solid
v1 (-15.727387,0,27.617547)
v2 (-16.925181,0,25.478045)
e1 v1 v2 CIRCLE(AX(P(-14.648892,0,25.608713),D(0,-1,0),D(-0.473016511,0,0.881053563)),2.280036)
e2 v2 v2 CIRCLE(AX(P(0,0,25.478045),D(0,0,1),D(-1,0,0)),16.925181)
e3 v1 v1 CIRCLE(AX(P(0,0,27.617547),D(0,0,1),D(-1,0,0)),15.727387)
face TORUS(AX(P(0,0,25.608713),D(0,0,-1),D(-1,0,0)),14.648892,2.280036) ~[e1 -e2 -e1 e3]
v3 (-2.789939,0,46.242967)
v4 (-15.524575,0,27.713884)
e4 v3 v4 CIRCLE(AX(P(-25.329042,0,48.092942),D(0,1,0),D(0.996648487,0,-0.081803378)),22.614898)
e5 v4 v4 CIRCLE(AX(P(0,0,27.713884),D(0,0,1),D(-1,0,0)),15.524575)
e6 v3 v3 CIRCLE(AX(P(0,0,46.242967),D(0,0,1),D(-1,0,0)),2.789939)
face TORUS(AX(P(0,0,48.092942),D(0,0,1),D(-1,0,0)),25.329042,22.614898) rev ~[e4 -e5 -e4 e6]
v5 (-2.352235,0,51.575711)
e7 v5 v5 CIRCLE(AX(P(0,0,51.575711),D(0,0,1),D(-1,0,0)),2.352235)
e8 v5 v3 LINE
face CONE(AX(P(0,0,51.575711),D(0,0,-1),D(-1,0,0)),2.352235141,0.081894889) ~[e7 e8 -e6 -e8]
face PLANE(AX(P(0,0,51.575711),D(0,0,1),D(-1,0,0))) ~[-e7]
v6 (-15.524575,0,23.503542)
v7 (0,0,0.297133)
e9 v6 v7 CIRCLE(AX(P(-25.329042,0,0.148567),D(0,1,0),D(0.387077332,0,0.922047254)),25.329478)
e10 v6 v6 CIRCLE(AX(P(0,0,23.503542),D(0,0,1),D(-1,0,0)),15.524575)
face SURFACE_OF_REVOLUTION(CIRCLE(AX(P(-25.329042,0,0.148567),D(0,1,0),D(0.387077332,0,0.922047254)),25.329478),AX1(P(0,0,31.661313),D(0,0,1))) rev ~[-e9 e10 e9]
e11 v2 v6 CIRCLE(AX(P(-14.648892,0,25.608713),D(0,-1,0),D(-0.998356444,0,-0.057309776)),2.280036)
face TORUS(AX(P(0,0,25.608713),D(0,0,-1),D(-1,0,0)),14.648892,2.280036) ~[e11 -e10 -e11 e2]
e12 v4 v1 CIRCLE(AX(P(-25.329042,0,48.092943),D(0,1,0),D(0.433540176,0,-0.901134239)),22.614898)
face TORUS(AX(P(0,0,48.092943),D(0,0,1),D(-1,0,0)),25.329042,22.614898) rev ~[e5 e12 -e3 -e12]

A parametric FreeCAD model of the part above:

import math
import FreeCAD as App
import Part
import Sketcher

V = App.Vector

doc = App.newDocument("Part")
body = doc.addObject("PartDesign::Body", "Body")

# Sketch on XZ plane
sketch1 = body.newObject("Sketcher::SketchObject", "Sketch")
sketch1.AttachmentSupport = (doc.getObject("XZ_Plane"), [""])
sketch1.MapMode = "FlatFace"
sketch1.addGeometry([
    Part.LineSegment(V(0, 51.575711, 0), V(-2.352235, 51.575711, 0)),  # 0
    Part.LineSegment(V(-2.352235, 51.575711, 0), V(-2.789939, 46.242967, 0)),  # 1
    Part.ArcOfCircle(Part.Circle(V(-25.329042, 48.092942, 0), V(0, 0, 1), 22.614898), math.radians(-64.307561), math.radians(-4.692232)),  # 2
    Part.ArcOfCircle(Part.Circle(V(-25.329042, 48.092943, 0), V(0, 0, 1), 22.614898), math.radians(-64.876416), math.radians(-64.307561)),  # 3
    Part.ArcOfCircle(Part.Circle(V(-14.648892, 25.608713, 0), V(0, 0, 1), 2.280036), math.radians(118.230284), math.radians(183.285408)),  # 4
    Part.ArcOfCircle(Part.Circle(V(-14.648892, 25.608713, 0), V(0, 0, 1), 2.280036), math.radians(-176.714592), math.radians(-112.585739)),  # 5
    Part.ArcOfCircle(Part.Circle(V(-25.329042, 0.148567, 0), V(0, 0, 1), 25.329478), math.radians(0.336063), math.radians(67.227236)),  # 6
    Part.LineSegment(V(0, 0.297133, 0), V(0, 51.575711, 0)),  # 7
], False)
sketch1.addConstraint([
    Sketcher.Constraint("Coincident", 0, 2, 1, 1),
    Sketcher.Constraint("Coincident", 1, 2, 2, 2),
    Sketcher.Constraint("Coincident", 2, 1, 3, 2),
    Sketcher.Constraint("Coincident", 3, 1, 4, 1),
    Sketcher.Constraint("Coincident", 4, 2, 5, 1),
    Sketcher.Constraint("Coincident", 5, 2, 6, 2),
    Sketcher.Constraint("Coincident", 6, 1, 7, 1),
    Sketcher.Constraint("Coincident", 7, 2, 0, 1),
    Sketcher.Constraint("Horizontal", 0),
    Sketcher.Constraint("Vertical", 7),
    Sketcher.Constraint("Coincident", 3, 3, 2, 3),
    Sketcher.Constraint("Coincident", 5, 3, 4, 3),
    Sketcher.Constraint("PointOnObject", 6, 1, -2),
    Sketcher.Constraint("Radius", 3, 22.614898),
    Sketcher.Constraint("Radius", 4, 2.280036),
    Sketcher.Constraint("Radius", 6, 25.329478),
    Sketcher.Constraint("DistanceY", 5, 3, 0, 2, 25.966998),
    Sketcher.Constraint("DistanceY", 7, 1, 7, 2, 51.278578),
    Sketcher.Constraint("DistanceX", 0, 2, 0, 1, 2.352235),
    Sketcher.Constraint("DistanceY", -1, 1, 0, 2, 51.575711),
    Sketcher.Constraint("DistanceX", 1, 2, -1, 1, 2.789939),
    Sketcher.Constraint("DistanceX", 4, 2, -1, 1, 16.925181),
    Sketcher.Constraint("DistanceX", 2, 3, 4, 3, 10.68015),
    Sketcher.Constraint("DistanceY", 4, 3, 2, 3, 22.484229),
    Sketcher.Constraint("DistanceX", 6, 3, 4, 3, 10.68015),
    Sketcher.Constraint("DistanceY", 4, 3, 2, 1, 2.105171),
    Sketcher.Constraint("DistanceY", 5, 2, 4, 3, 2.105171),
])
revolution = body.newObject("PartDesign::Revolution", "Revolution")
revolution.Profile = sketch1
revolution.ReferenceAxis = (sketch1, ["V_Axis"])
revolution.Angle = 360

doc.recompute()
